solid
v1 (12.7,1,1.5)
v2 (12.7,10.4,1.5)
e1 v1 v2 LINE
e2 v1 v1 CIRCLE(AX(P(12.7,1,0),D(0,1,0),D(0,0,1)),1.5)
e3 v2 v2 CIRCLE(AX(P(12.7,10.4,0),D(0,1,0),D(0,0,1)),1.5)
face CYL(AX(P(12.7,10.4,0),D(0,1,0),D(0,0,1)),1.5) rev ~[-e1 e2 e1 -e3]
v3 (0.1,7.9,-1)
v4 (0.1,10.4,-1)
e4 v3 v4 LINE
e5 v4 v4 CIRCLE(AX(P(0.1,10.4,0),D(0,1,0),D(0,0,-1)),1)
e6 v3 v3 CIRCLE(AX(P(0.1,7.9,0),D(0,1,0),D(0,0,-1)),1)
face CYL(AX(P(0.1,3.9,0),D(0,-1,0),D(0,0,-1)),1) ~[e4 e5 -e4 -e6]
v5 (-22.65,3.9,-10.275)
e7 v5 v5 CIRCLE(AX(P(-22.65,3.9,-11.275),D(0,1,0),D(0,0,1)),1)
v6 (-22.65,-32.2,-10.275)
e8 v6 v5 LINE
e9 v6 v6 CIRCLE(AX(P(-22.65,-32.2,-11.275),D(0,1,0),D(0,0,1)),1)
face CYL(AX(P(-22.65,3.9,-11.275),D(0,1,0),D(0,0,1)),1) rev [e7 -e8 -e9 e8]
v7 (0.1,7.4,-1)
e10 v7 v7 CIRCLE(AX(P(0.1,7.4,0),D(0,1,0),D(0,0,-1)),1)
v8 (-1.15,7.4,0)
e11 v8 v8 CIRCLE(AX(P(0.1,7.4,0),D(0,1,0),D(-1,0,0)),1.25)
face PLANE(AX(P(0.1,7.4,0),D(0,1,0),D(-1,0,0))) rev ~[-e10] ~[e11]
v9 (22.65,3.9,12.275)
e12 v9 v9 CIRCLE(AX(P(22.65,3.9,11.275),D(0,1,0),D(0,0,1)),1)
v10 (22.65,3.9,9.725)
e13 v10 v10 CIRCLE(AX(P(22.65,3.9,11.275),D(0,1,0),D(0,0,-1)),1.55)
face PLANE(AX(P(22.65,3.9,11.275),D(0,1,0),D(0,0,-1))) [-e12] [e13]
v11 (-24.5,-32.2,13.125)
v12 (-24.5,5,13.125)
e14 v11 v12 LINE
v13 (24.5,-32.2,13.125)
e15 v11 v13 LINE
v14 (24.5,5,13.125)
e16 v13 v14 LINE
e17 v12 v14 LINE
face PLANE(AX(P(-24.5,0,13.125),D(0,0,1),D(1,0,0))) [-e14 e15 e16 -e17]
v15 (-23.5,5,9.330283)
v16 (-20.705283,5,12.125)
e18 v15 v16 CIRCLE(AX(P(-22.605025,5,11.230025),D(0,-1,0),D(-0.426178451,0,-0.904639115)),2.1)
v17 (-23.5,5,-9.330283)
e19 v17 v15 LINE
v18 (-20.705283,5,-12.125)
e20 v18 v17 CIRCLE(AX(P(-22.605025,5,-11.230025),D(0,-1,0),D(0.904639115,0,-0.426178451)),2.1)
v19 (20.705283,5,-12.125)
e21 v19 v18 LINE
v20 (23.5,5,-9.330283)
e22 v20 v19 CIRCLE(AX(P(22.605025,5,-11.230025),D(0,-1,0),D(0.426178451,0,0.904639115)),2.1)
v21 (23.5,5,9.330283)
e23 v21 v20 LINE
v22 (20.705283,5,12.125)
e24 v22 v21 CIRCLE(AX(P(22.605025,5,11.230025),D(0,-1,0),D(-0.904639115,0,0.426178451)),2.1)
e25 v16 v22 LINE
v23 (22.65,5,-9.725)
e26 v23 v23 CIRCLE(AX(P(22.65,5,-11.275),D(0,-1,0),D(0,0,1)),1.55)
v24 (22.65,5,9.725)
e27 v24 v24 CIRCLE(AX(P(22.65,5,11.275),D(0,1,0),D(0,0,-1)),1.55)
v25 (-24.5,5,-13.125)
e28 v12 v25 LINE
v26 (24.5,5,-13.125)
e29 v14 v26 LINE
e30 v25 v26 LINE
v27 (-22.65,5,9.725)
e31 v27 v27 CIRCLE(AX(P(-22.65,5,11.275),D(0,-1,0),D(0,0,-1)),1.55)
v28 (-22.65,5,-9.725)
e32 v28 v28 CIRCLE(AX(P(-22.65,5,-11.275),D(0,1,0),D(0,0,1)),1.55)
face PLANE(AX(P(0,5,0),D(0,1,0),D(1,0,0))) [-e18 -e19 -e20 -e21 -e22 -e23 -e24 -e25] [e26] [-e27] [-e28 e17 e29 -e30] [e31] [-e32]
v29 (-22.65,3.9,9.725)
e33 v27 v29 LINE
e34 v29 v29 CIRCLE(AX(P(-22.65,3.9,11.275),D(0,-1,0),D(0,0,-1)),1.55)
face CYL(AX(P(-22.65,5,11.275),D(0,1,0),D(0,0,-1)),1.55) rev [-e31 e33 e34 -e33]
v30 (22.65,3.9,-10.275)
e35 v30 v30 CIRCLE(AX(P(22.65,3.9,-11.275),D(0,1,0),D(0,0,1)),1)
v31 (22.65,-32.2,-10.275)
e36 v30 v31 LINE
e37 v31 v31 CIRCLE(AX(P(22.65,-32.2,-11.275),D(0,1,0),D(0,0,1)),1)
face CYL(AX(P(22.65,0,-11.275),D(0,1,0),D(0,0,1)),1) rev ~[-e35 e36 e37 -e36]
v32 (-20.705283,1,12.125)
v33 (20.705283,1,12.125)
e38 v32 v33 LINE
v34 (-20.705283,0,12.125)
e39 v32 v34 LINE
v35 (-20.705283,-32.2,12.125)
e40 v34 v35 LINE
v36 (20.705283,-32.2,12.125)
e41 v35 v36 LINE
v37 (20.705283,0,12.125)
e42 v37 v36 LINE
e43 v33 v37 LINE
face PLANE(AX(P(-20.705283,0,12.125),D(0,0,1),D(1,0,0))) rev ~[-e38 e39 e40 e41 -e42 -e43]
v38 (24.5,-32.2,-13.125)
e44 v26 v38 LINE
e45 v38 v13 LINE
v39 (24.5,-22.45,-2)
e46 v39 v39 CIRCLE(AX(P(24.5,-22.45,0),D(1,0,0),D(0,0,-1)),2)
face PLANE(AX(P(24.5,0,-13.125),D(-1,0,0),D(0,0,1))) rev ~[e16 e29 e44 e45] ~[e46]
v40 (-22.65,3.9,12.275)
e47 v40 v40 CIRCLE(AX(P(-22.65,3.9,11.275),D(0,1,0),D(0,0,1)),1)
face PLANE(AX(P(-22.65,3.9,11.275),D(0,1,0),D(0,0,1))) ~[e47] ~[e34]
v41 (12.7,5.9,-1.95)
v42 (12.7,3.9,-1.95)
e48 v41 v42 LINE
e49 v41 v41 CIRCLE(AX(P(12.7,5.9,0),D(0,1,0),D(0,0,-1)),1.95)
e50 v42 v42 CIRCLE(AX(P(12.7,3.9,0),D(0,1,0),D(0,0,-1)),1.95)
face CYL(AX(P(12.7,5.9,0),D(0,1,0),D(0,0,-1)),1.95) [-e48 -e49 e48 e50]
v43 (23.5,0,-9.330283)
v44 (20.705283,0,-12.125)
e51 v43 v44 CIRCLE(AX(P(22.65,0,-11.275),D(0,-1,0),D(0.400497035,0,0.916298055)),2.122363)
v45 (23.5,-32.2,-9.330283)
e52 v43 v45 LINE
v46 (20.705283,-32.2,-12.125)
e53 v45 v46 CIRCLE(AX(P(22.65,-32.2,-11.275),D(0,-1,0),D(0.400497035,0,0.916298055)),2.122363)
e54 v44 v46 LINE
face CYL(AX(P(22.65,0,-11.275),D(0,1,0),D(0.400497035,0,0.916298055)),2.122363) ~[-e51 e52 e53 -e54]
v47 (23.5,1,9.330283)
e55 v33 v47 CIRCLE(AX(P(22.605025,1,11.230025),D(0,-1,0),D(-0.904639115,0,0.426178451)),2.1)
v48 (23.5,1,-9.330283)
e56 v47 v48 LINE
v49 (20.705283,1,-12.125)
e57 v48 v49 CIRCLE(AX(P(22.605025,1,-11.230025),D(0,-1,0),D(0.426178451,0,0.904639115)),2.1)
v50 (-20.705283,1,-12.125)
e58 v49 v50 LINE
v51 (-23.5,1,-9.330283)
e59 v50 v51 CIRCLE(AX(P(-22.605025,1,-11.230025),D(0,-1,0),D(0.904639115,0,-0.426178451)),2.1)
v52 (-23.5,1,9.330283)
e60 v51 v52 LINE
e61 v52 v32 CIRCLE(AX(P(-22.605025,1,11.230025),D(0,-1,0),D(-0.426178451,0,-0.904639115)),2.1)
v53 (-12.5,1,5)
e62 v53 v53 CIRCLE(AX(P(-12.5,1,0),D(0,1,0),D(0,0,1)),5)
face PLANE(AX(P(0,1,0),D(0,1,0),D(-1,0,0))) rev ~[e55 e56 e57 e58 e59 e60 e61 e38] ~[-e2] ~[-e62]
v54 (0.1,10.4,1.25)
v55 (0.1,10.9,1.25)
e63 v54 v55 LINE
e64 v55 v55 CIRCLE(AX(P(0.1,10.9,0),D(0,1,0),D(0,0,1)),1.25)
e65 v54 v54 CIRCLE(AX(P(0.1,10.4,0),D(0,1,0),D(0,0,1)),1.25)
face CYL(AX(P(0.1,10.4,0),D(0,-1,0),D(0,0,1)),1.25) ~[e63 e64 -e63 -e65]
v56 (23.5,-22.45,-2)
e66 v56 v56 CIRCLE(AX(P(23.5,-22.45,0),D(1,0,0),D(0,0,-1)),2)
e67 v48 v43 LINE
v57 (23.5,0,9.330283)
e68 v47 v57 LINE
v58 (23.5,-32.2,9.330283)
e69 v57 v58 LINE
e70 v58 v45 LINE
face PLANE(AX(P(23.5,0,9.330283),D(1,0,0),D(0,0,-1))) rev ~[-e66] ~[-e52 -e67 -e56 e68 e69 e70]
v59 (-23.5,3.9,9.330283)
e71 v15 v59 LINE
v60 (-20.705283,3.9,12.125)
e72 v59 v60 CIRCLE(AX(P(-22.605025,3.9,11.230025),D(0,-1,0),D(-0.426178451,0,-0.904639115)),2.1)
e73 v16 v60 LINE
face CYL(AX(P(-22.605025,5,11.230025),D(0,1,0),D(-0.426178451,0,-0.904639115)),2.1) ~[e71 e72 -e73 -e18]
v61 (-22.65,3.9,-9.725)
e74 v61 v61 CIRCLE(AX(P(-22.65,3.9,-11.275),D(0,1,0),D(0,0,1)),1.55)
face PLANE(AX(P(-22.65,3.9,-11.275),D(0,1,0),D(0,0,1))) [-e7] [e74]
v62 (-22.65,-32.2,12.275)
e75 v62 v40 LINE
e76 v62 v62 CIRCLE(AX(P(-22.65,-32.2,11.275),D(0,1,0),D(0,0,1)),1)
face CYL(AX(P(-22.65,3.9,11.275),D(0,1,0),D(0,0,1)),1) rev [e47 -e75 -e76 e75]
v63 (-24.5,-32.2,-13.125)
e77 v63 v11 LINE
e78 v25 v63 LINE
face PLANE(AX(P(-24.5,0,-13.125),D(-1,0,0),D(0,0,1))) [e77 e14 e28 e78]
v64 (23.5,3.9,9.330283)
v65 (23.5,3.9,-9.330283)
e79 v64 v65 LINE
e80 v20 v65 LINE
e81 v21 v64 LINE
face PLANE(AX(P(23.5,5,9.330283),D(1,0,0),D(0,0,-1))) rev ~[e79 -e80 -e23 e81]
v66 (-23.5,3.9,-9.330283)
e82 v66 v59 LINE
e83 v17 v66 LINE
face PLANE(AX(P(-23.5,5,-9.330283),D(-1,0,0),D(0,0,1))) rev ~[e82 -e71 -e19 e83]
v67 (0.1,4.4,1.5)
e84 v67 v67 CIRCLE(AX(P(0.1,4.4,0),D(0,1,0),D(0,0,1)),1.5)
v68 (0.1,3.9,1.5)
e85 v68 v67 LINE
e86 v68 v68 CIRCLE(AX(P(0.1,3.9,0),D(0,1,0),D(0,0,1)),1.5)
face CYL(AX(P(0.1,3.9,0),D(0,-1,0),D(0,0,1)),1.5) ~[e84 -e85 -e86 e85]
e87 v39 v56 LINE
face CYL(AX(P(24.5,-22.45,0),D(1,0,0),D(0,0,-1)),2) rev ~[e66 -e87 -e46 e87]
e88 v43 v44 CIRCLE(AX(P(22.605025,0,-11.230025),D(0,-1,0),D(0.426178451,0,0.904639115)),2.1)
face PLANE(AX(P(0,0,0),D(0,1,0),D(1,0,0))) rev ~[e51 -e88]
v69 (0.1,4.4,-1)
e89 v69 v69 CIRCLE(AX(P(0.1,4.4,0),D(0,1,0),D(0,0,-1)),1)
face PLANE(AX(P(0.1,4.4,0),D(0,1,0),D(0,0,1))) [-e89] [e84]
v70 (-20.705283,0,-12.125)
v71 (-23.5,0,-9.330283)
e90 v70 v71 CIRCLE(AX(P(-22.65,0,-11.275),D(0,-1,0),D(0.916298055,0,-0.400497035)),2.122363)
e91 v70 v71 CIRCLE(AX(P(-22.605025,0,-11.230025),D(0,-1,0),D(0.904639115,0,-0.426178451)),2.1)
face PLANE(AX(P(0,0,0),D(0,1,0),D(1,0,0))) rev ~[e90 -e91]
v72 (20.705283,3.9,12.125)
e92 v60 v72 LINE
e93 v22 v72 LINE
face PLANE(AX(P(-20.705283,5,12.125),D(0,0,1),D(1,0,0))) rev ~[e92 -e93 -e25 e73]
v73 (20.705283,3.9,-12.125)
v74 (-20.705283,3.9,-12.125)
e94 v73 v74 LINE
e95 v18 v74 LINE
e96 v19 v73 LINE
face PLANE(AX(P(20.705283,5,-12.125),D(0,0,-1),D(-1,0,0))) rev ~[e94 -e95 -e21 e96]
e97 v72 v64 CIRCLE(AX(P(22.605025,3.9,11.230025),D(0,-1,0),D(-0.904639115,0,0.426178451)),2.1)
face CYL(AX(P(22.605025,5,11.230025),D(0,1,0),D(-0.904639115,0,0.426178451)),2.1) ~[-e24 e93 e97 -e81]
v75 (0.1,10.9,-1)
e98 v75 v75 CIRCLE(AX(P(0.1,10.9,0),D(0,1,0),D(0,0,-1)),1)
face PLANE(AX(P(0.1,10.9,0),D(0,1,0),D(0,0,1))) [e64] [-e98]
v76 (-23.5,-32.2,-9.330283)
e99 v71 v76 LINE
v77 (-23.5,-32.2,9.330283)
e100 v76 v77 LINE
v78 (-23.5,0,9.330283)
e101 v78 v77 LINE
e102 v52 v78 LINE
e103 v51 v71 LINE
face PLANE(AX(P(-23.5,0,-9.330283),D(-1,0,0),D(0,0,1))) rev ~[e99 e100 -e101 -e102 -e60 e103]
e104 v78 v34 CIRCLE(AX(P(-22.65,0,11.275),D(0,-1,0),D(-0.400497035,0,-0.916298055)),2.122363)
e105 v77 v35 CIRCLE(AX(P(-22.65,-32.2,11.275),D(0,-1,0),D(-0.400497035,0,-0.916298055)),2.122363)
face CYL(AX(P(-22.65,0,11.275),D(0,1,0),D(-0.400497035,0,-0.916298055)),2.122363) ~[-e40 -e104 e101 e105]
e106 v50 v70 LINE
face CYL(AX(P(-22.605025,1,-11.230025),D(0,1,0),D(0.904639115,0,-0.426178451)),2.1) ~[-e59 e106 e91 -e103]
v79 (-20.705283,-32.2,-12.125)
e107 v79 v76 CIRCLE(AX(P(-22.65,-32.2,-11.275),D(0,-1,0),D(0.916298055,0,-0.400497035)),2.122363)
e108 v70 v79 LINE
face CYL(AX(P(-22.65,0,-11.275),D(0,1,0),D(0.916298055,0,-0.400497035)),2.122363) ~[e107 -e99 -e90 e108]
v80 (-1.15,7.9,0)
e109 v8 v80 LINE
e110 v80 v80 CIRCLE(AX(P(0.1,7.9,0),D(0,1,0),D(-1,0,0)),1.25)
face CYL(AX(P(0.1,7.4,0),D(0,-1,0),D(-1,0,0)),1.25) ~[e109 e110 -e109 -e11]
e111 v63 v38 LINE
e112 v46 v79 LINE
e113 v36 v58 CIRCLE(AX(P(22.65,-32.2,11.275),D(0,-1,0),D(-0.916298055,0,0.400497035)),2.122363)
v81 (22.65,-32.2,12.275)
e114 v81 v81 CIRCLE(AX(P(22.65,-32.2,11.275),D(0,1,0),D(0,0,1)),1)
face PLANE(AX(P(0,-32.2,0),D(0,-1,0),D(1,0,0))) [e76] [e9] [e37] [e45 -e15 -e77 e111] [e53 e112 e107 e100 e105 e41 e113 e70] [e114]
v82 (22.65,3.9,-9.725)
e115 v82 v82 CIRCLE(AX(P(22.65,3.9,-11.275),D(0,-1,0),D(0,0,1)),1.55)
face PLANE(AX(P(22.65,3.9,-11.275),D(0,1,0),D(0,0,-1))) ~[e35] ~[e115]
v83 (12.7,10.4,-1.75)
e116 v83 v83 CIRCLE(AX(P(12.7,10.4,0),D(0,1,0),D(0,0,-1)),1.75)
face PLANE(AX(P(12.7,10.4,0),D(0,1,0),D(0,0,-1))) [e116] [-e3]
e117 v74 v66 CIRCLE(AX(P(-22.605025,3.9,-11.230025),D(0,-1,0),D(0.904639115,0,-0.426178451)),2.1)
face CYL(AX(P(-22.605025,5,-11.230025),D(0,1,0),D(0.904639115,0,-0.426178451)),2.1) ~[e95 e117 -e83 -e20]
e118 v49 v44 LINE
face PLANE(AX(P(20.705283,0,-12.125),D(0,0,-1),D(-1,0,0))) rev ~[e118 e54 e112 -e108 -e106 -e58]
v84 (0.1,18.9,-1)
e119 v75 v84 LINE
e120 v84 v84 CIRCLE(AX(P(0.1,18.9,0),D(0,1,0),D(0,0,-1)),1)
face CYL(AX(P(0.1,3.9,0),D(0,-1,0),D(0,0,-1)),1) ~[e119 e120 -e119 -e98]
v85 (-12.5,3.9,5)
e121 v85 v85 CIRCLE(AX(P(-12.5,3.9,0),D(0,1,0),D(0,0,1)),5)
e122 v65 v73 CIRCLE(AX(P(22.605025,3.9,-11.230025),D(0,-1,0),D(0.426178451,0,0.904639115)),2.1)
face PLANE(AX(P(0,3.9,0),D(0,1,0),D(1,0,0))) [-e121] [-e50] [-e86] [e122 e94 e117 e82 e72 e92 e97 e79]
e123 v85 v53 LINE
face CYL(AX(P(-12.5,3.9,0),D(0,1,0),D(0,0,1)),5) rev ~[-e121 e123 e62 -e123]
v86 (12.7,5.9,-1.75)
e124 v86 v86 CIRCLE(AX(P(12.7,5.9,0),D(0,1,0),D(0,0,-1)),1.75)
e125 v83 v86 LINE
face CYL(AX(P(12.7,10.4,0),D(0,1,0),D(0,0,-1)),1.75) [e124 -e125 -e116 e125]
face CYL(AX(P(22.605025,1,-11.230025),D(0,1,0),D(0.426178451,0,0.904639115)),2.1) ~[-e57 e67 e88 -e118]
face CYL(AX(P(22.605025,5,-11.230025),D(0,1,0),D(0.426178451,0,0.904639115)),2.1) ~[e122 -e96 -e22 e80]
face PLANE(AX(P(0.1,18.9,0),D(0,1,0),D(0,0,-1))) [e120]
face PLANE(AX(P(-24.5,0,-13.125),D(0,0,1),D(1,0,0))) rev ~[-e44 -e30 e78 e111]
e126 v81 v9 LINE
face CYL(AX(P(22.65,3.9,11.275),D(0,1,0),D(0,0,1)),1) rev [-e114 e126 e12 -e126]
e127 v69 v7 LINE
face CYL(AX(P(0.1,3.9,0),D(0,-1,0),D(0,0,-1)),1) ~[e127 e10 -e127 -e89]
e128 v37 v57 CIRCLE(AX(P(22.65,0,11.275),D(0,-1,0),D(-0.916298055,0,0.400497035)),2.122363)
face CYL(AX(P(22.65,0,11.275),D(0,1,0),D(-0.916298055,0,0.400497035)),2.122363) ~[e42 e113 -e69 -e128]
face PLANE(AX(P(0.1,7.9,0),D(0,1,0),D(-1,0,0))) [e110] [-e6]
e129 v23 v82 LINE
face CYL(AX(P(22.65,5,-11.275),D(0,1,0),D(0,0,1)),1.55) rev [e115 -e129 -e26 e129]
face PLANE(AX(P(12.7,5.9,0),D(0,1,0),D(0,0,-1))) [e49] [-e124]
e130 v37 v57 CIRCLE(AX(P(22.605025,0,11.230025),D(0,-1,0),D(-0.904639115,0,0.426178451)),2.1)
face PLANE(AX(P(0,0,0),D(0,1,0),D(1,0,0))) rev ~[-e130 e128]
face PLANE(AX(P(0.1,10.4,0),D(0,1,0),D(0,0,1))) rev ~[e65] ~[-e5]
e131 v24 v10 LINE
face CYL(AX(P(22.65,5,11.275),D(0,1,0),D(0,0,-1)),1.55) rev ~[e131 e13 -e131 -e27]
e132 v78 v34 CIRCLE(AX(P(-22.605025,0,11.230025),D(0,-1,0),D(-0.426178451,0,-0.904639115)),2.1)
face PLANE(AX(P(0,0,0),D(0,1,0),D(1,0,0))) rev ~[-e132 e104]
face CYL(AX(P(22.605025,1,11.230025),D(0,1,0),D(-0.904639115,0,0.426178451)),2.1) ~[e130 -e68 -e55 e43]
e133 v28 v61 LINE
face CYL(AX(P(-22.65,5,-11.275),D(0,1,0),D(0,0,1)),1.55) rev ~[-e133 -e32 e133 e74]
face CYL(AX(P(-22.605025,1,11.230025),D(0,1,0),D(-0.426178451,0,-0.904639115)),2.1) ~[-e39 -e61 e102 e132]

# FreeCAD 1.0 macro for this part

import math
import FreeCAD as App
import Part
import Sketcher

V = App.Vector
Q = App.Units.Quantity


def add_polygon(sketch, points):
    """Adds a closed chain of lines whose ends are joined by coincident constraints."""
    first, n = sketch.GeometryCount, len(points)
    for a, b in zip(points, points[1:] + points[:1]):
        sketch.addGeometry(Part.LineSegment(App.Vector(*a, 0), App.Vector(*b, 0)), False)
    for i in range(n):
        sketch.addConstraint(Sketcher.Constraint("Coincident", first + i, 2, first + (i + 1) % n, 1))

doc = App.newDocument("Part")
body = doc.addObject("PartDesign::Body", "Body")

# Sketch on XZ plane
sketch1 = body.newObject("Sketcher::SketchObject", "Sketch")
sketch1.AttachmentSupport = (doc.getObject("XZ_Plane"), [""])
sketch1.MapMode = "FlatFace"
add_polygon(sketch1, [(-24, -13), (-24, 13), (24, 13), (24, -13)])  # lines 0-3
sketch1.addConstraint([
    Sketcher.Constraint("Vertical", 0),
    Sketcher.Constraint("Horizontal", 1),
    Sketcher.Constraint("Vertical", 2),
    Sketcher.Constraint("Horizontal", 3),
    Sketcher.Constraint("Symmetric", 0, 2, 2, 2, -1, 1),
    Sketcher.Constraint("DistanceX", 1, 1, 1, 2, Q("49 mm")),
    Sketcher.Constraint("DistanceY", 0, 1, 0, 2, Q("26.25 mm")),
])
pad1 = body.newObject("PartDesign::Pad", "Pad")
pad1.Profile = sketch1
pad1.Length = 5
pad1.Reversed = True

# Sketch on XZ plane
sketch2 = body.newObject("Sketcher::SketchObject", "Sketch001")
sketch2.AttachmentSupport = (doc.getObject("XZ_Plane"), [""])
sketch2.MapMode = "FlatFace"
sketch2.AttachmentOffset = App.Placement(V(0, 0, -5), App.Rotation())
sketch2.addGeometry(Part.Circle(V(-22.6, -11.3, 0), V(0, 0, 1), 1.6), False)
sketch2.addConstraint([
    Sketcher.Constraint("Diameter", 0, Q("3.1 mm")),
    Sketcher.Constraint("DistanceX", 0, 3, -1, 1, Q("22.65 mm")),
    Sketcher.Constraint("DistanceY", 0, 3, -1, 1, Q("11.275 mm")),
])
pocket1 = body.newObject("PartDesign::Pocket", "Pocket")
pocket1.Profile = sketch2
pocket1.Length = 1.1
pocket1.Reversed = True
doc.recompute()

mirrored = body.newObject("PartDesign::Mirrored", "Mirrored")
mirrored.Originals = [pocket1]
mirrored.MirrorPlane = (doc.getObject("YZ_Plane"), [""])
body.Tip = mirrored
doc.recompute()

mirrored2 = body.newObject("PartDesign::Mirrored", "Mirrored001")
mirrored2.Originals = [pocket1]
mirrored2.MirrorPlane = (doc.getObject("XY_Plane"), [""])
body.Tip = mirrored2

# Sketch on XZ plane
sketch3 = body.newObject("Sketcher::SketchObject", "Sketch002")
sketch3.AttachmentSupport = (doc.getObject("XZ_Plane"), [""])
sketch3.MapMode = "FlatFace"
sketch3.AttachmentOffset = App.Placement(V(0, 0, -5), App.Rotation())
sketch3.addGeometry(Part.Circle(V(22.6, 11.3, 0), V(0, 0, 1), 1.6), False)
sketch3.addConstraint([
    Sketcher.Constraint("Diameter", 0, Q("3.1 mm")),
    Sketcher.Constraint("DistanceX", -1, 1, 0, 3, Q("22.65 mm")),
    Sketcher.Constraint("DistanceY", -1, 1, 0, 3, Q("11.275 mm")),
])
pocket2 = body.newObject("PartDesign::Pocket", "Pocket001")
pocket2.Profile = sketch3
pocket2.Length = 1.1
pocket2.Reversed = True

# Sketch on XZ plane
sketch4 = body.newObject("Sketcher::SketchObject", "Sketch003")
sketch4.AttachmentSupport = (doc.getObject("XZ_Plane"), [""])
sketch4.MapMode = "FlatFace"
sketch4.AttachmentOffset = App.Placement(V(0, 0, -5), App.Rotation())
sketch4.addGeometry([
    Part.LineSegment(V(-20.7, 12.1, 0), V(20.7, 12.1, 0)),  # 0
    Part.ArcOfCircle(Part.Circle(V(22.6, 11.2, 0), V(0, 0, 1), 2.1), math.radians(155), math.radians(295)),  # 1
    Part.LineSegment(V(23.5, 9.3, 0), V(23.5, -9.3, 0)),  # 2
    Part.ArcOfCircle(Part.Circle(V(22.6, -11.2, 0), V(0, 0, 1), 2.1), math.radians(65), math.radians(205)),  # 3
    Part.LineSegment(V(20.7, -12.1, 0), V(-20.7, -12.1, 0)),  # 4
    Part.ArcOfCircle(Part.Circle(V(-22.6, -11.2, 0), V(0, 0, 1), 2.1), math.radians(-25), math.radians(115)),  # 5
    Part.LineSegment(V(-23.5, -9.3, 0), V(-23.5, 9.3, 0)),  # 6
    Part.ArcOfCircle(Part.Circle(V(-22.6, 11.2, 0), V(0, 0, 1), 2.1), math.radians(-115), math.radians(25)),  # 7
], False)
sketch4.addConstraint([
    Sketcher.Constraint("Coincident", 0, 2, 1, 1),
    Sketcher.Constraint("Coincident", 1, 2, 2, 1),
    Sketcher.Constraint("Coincident", 2, 2, 3, 1),
    Sketcher.Constraint("Coincident", 3, 2, 4, 1),
    Sketcher.Constraint("Coincident", 4, 2, 5, 1),
    Sketcher.Constraint("Coincident", 5, 2, 6, 1),
    Sketcher.Constraint("Coincident", 6, 2, 7, 1),
    Sketcher.Constraint("Coincident", 7, 2, 0, 1),
    Sketcher.Constraint("Horizontal", 0),
    Sketcher.Constraint("Vertical", 2),
    Sketcher.Constraint("Horizontal", 4),
    Sketcher.Constraint("Vertical", 6),
    Sketcher.Constraint("Equal", 1, 3),
    Sketcher.Constraint("Equal", 3, 5),
    Sketcher.Constraint("Equal", 5, 7),
    Sketcher.Constraint("Symmetric", 1, 3, 5, 3, -1, 1),
    Sketcher.Constraint("Symmetric", 3, 3, 7, 3, -1, 1),
    Sketcher.Constraint("Symmetric", 3, 3, 5, 3, -2),
    Sketcher.Constraint("Horizontal", 2, 2, 5, 2),
    Sketcher.Constraint("Vertical", 0, 2, 3, 2),
    Sketcher.Constraint("Radius", 1, Q("2.1 mm")),
    Sketcher.Constraint("DistanceX", -1, 1, 1, 2, Q("23.5 mm")),
    Sketcher.Constraint("DistanceY", 3, 2, 0, 2, Q("24.25 mm")),
    Sketcher.Constraint("DistanceX", 0, 1, 0, 2, Q("41.410566 mm")),
    Sketcher.Constraint("DistanceY", 2, 2, 2, 1, Q("18.660566 mm")),
])
pocket3 = body.newObject("PartDesign::Pocket", "Pocket002")
pocket3.Profile = sketch4
pocket3.Length = 1.1
pocket3.Reversed = True

# Sketch on XZ plane
sketch5 = body.newObject("Sketcher::SketchObject", "Sketch004")
sketch5.AttachmentSupport = (doc.getObject("XZ_Plane"), [""])
sketch5.MapMode = "FlatFace"
sketch5.AttachmentOffset = App.Placement(V(0, 0, -3.9), App.Rotation())
sketch5.addGeometry([
    Part.Circle(V(-22.6, -11.3, 0), V(0, 0, 1), 1),
    Part.Circle(V(22.6, -11.3, 0), V(0, 0, 1), 1),
    Part.Circle(V(22.6, 11.3, 0), V(0, 0, 1), 1),
    Part.Circle(V(-22.6, 11.3, 0), V(0, 0, 1), 1),
], False)
sketch5.addConstraint([
    Sketcher.Constraint("Equal", 0, 1),
    Sketcher.Constraint("Equal", 1, 2),
    Sketcher.Constraint("Equal", 2, 3),
    Sketcher.Constraint("Symmetric", 0, 3, 2, 3, -1, 1),
    Sketcher.Constraint("Symmetric", 1, 3, 3, 3, -1, 1),
    Sketcher.Constraint("Symmetric", 0, 3, 1, 3, -2),
    Sketcher.Constraint("Diameter", 0, Q("2 mm")),
    Sketcher.Constraint("DistanceX", 0, 3, 1, 3, Q("45.3 mm")),
    Sketcher.Constraint("DistanceY", 1, 3, 2, 3, Q("22.55 mm")),
])
pocket4 = body.newObject("PartDesign::Pocket", "Pocket003")
pocket4.Profile = sketch5
pocket4.Length = 50
pocket4.Reversed = True

# Sketch on XZ plane
sketch6 = body.newObject("Sketcher::SketchObject", "Sketch005")
sketch6.AttachmentSupport = (doc.getObject("XZ_Plane"), [""])
sketch6.MapMode = "FlatFace"
sketch6.AttachmentOffset = App.Placement(V(0, 0, -3.9), App.Rotation())
sketch6.addGeometry(Part.Circle(V(-12, 0, 0), V(0, 0, 1), 5), False)
sketch6.addConstraint([
    Sketcher.Constraint("PointOnObject", 0, 3, -1),
    Sketcher.Constraint("Diameter", 0, Q("10 mm")),
    Sketcher.Constraint("DistanceX", 0, 3, -1, 1, Q("12.5 mm")),
])
pocket5 = body.newObject("PartDesign::Pocket", "Pocket004")
pocket5.Profile = sketch6
pocket5.Type = "ThroughAll"
pocket5.Reversed = True

# Sketch on XZ plane
sketch7 = body.newObject("Sketcher::SketchObject", "Sketch006")
sketch7.AttachmentSupport = (doc.getObject("XZ_Plane"), [""])
sketch7.MapMode = "FlatFace"
sketch7.AttachmentOffset = App.Placement(V(0, 0, -3.9), App.Rotation())
sketch7.addGeometry([
    Part.Circle(V(0.1, 0, 0), V(0, 0, 1), 1.5),
    Part.Circle(V(0.1, 0, 0), V(0, 0, 1), 1),
], False)
sketch7.addConstraint([
    Sketcher.Constraint("Coincident", 1, 3, 0, 3),
    Sketcher.Constraint("PointOnObject", 0, 3, -1),
    Sketcher.Constraint("Diameter", 0, Q("3 mm")),
    Sketcher.Constraint("Diameter", 1, Q("2 mm")),
    Sketcher.Constraint("DistanceX", -1, 1, 0, 3, Q("0.1 mm")),
])
pad2 = body.newObject("PartDesign::Pad", "Pad001")
pad2.Profile = sketch7
pad2.Length = 0.5
pad2.Reversed = True

# Sketch on XZ plane
sketch8 = body.newObject("Sketcher::SketchObject", "Sketch007")
sketch8.AttachmentSupport = (doc.getObject("XZ_Plane"), [""])
sketch8.MapMode = "FlatFace"
sketch8.AttachmentOffset = App.Placement(V(0, 0, -1), App.Rotation())
sketch8.addGeometry([
    Part.LineSegment(V(23.5, -9.3, 0), V(23.5, 9.3, 0)),  # 0
    Part.ArcOfCircle(Part.Circle(V(22.6, 11.2, 0), V(0, 0, 1), 2.1), math.radians(155), math.radians(295)),  # 1
    Part.LineSegment(V(20.7, 12.1, 0), V(-20.7, 12.1, 0)),  # 2
    Part.ArcOfCircle(Part.Circle(V(-22.6, 11.2, 0), V(0, 0, 1), 2.1), math.radians(-115), math.radians(25)),  # 3
    Part.LineSegment(V(-23.5, 9.3, 0), V(-23.5, -9.3, 0)),  # 4
    Part.ArcOfCircle(Part.Circle(V(-22.6, -11.2, 0), V(0, 0, 1), 2.1), math.radians(-25), math.radians(115)),  # 5
    Part.LineSegment(V(-20.7, -12.1, 0), V(20.7, -12.1, 0)),  # 6
    Part.ArcOfCircle(Part.Circle(V(22.6, -11.2, 0), V(0, 0, 1), 2.1), math.radians(65), math.radians(205)),  # 7
], False)
sketch8.addConstraint([
    Sketcher.Constraint("Coincident", 0, 2, 1, 2),
    Sketcher.Constraint("Coincident", 1, 1, 2, 1),
    Sketcher.Constraint("Coincident", 2, 2, 3, 2),
    Sketcher.Constraint("Coincident", 3, 1, 4, 1),
    Sketcher.Constraint("Coincident", 4, 2, 5, 2),
    Sketcher.Constraint("Coincident", 5, 1, 6, 1),
    Sketcher.Constraint("Coincident", 6, 2, 7, 2),
    Sketcher.Constraint("Coincident", 7, 1, 0, 1),
    Sketcher.Constraint("Vertical", 0),
    Sketcher.Constraint("Horizontal", 2),
    Sketcher.Constraint("Vertical", 4),
    Sketcher.Constraint("Horizontal", 6),
    Sketcher.Constraint("Equal", 1, 3),
    Sketcher.Constraint("Equal", 3, 5),
    Sketcher.Constraint("Equal", 5, 7),
    Sketcher.Constraint("Symmetric", 1, 3, 5, 3, -1, 1),
    Sketcher.Constraint("Symmetric", 3, 3, 7, 3, -1, 1),
    Sketcher.Constraint("Symmetric", 1, 3, 3, 3, -2),
    Sketcher.Constraint("Horizontal", 0, 2, 3, 1),
    Sketcher.Constraint("Vertical", 2, 2, 5, 1),
    Sketcher.Constraint("Radius", 1, Q("2.1 mm")),
    Sketcher.Constraint("DistanceX", -1, 1, 0, 2, Q("23.5 mm")),
    Sketcher.Constraint("DistanceY", 5, 1, 2, 2, Q("24.25 mm")),
    Sketcher.Constraint("DistanceX", 2, 2, 2, 1, Q("41.410566 mm")),
    Sketcher.Constraint("DistanceY", 0, 1, 0, 2, Q("18.660566 mm")),
])
pocket6 = body.newObject("PartDesign::Pocket", "Pocket005")
pocket6.Profile = sketch8
pocket6.Length = 1
pocket6.Reversed = True

# Sketch on XZ plane
sketch9 = body.newObject("Sketcher::SketchObject", "Sketch008")
sketch9.AttachmentSupport = (doc.getObject("XZ_Plane"), [""])
sketch9.MapMode = "FlatFace"
sketch9.AttachmentOffset = App.Placement(V(0, 0, -3.9), App.Rotation())
sketch9.addGeometry(Part.Circle(V(12.7, 0, 0), V(0, 0, 1), 1.5), False)
sketch9.addConstraint([
    Sketcher.Constraint("PointOnObject", 0, 3, -1),
    Sketcher.Constraint("Diameter", 0, Q("3 mm")),
    Sketcher.Constraint("DistanceX", -1, 1, 0, 3, Q("12.7 mm")),
])
pocket7 = body.newObject("PartDesign::Pocket", "Pocket006")
pocket7.Profile = sketch9
pocket7.Type = "ThroughAll"
pocket7.Reversed = True

# Sketch on XZ plane
sketch10 = body.newObject("Sketcher::SketchObject", "Sketch009")
sketch10.AttachmentSupport = (doc.getObject("XZ_Plane"), [""])
sketch10.MapMode = "FlatFace"
sketch10.AttachmentOffset = App.Placement(V(0, 0, -10.4), App.Rotation())
sketch10.addGeometry([
    Part.Circle(V(12.7, 0, 0), V(0, 0, 1), 1.8),
    Part.Circle(V(12.7, 0, 0), V(0, 0, 1), 1.5),
], False)
sketch10.addConstraint([
    Sketcher.Constraint("Coincident", 1, 3, 0, 3),
    Sketcher.Constraint("PointOnObject", 0, 3, -1),
    Sketcher.Constraint("Diameter", 1, Q("3 mm")),
    Sketcher.Constraint("Diameter", 0, Q("3.5 mm")),
    Sketcher.Constraint("DistanceX", -1, 1, 0, 3, Q("12.7 mm")),
])
pad3 = body.newObject("PartDesign::Pad", "Pad002")
pad3.Profile = sketch10
pad3.Length = 6.5

# Sketch on XZ plane
sketch11 = body.newObject("Sketcher::SketchObject", "Sketch010")
sketch11.AttachmentSupport = (doc.getObject("XZ_Plane"), [""])
sketch11.MapMode = "FlatFace"
sketch11.AttachmentOffset = App.Placement(V(0, 0, -3.9), App.Rotation())
sketch11.addGeometry(Part.Circle(V(0.1, 0, 0), V(0, 0, 1), 1), False)
sketch11.addConstraint([
    Sketcher.Constraint("PointOnObject", 0, 3, -1),
    Sketcher.Constraint("Diameter", 0, Q("2 mm")),
    Sketcher.Constraint("DistanceX", -1, 1, 0, 3, Q("0.1 mm")),
])
pad4 = body.newObject("PartDesign::Pad", "Pad003")
pad4.Profile = sketch11
pad4.Length = 15
pad4.Reversed = True

# Sketch on XZ plane
sketch12 = body.newObject("Sketcher::SketchObject", "Sketch011")
sketch12.AttachmentSupport = (doc.getObject("XZ_Plane"), [""])
sketch12.MapMode = "FlatFace"
sketch12.AttachmentOffset = App.Placement(V(0, 0, -10.4), App.Rotation())
sketch12.addGeometry([
    Part.Circle(V(0.1, 0, 0), V(0, 0, 1), 1.2),
    Part.Circle(V(0.1, 0, 0), V(0, 0, 1), 1),
], False)
sketch12.addConstraint([
    Sketcher.Constraint("Coincident", 1, 3, 0, 3),
    Sketcher.Constraint("PointOnObject", 0, 3, -1),
    Sketcher.Constraint("Diameter", 1, Q("2 mm")),
    Sketcher.Constraint("Diameter", 0, Q("2.5 mm")),
    Sketcher.Constraint("DistanceX", -1, 1, 0, 3, Q("0.1 mm")),
])
pad5 = body.newObject("PartDesign::Pad", "Pad004")
pad5.Profile = sketch12
pad5.Length = 0.5
pad5.Reversed = True

# Sketch on XZ plane
sketch13 = body.newObject("Sketcher::SketchObject", "Sketch012")
sketch13.AttachmentSupport = (doc.getObject("XZ_Plane"), [""])
sketch13.MapMode = "FlatFace"
sketch13.AttachmentOffset = App.Placement(V(0, 0, -7.4), App.Rotation())
sketch13.addGeometry([
    Part.Circle(V(0.1, 0, 0), V(0, 0, 1), 1.2),
    Part.Circle(V(0.1, 0, 0), V(0, 0, 1), 1),
], False)
sketch13.addConstraint([
    Sketcher.Constraint("Coincident", 1, 3, 0, 3),
    Sketcher.Constraint("PointOnObject", 0, 3, -1),
    Sketcher.Constraint("Diameter", 1, Q("2 mm")),
    Sketcher.Constraint("Diameter", 0, Q("2.5 mm")),
    Sketcher.Constraint("DistanceX", -1, 1, 0, 3, Q("0.1 mm")),
])
pad6 = body.newObject("PartDesign::Pad", "Pad005")
pad6.Profile = sketch13
pad6.Length = 0.5
pad6.Reversed = True

# Sketch on XZ plane
sketch14 = body.newObject("Sketcher::SketchObject", "Sketch013")
sketch14.AttachmentSupport = (doc.getObject("XZ_Plane"), [""])
sketch14.MapMode = "FlatFace"
sketch14.AttachmentOffset = App.Placement(V(0, 0, -5.9), App.Rotation())
sketch14.addGeometry([
    Part.Circle(V(12.7, 0, 0), V(0, 0, 1), 1.9),
    Part.Circle(V(12.7, 0, 0), V(0, 0, 1), 1.8),
], False)
sketch14.addConstraint([
    Sketcher.Constraint("Coincident", 1, 3, 0, 3),
    Sketcher.Constraint("PointOnObject", 0, 3, -1),
    Sketcher.Constraint("Diameter", 0, Q("3.9 mm")),
    Sketcher.Constraint("Diameter", 1, Q("3.5 mm")),
    Sketcher.Constraint("DistanceX", -1, 1, 0, 3, Q("12.7 mm")),
])
pad7 = body.newObject("PartDesign::Pad", "Pad006")
pad7.Profile = sketch14
pad7.Length = 2

# Sketch on XZ plane
sketch15 = body.newObject("Sketcher::SketchObject", "Sketch014")
sketch15.AttachmentSupport = (doc.getObject("XZ_Plane"), [""])
sketch15.MapMode = "FlatFace"
add_polygon(sketch15, [(-24.5, 13.1), (-24.5, -13.1), (24.5, -13.1), (24.5, 13.1)])  # lines 0-3
sketch15.addGeometry(Part.ArcOfCircle(Part.Circle(V(-22.6, 11.3, 0), V(0, 0, 1), 2.1), math.radians(-114), math.radians(24)), False)  # 4
sketch15.addGeometry(Part.LineSegment(V(-20.7, 12.1, 0), V(20.7, 12.1, 0)), False)  # 5
sketch15.addGeometry(Part.ArcOfCircle(Part.Circle(V(22.6, 11.3, 0), V(0, 0, 1), 2.1), math.radians(156), math.radians(294)), False)  # 6
sketch15.addGeometry(Part.LineSegment(V(23.5, 9.3, 0), V(23.5, -9.3, 0)), False)  # 7
sketch15.addGeometry(Part.ArcOfCircle(Part.Circle(V(22.6, -11.3, 0), V(0, 0, 1), 2.1), math.radians(66), math.radians(204)), False)  # 8
sketch15.addGeometry(Part.LineSegment(V(20.7, -12.1, 0), V(-20.7, -12.1, 0)), False)  # 9
sketch15.addGeometry(Part.ArcOfCircle(Part.Circle(V(-22.6, -11.3, 0), V(0, 0, 1), 2.1), math.radians(-24), math.radians(114)), False)  # 10
sketch15.addGeometry(Part.LineSegment(V(-23.5, -9.3, 0), V(-23.5, 9.3, 0)), False)  # 11
sketch15.addConstraint([
    Sketcher.Constraint("Coincident", 4, 2, 5, 1),
    Sketcher.Constraint("Coincident", 5, 2, 6, 1),
    Sketcher.Constraint("Coincident", 6, 2, 7, 1),
    Sketcher.Constraint("Coincident", 7, 2, 8, 1),
    Sketcher.Constraint("Coincident", 8, 2, 9, 1),
    Sketcher.Constraint("Coincident", 9, 2, 10, 1),
    Sketcher.Constraint("Coincident", 10, 2, 11, 1),
    Sketcher.Constraint("Coincident", 11, 2, 4, 1),
    Sketcher.Constraint("Vertical", 0),
    Sketcher.Constraint("Horizontal", 1),
    Sketcher.Constraint("Vertical", 2),
    Sketcher.Constraint("Horizontal", 3),
    Sketcher.Constraint("Horizontal", 5),
    Sketcher.Constraint("Vertical", 7),
    Sketcher.Constraint("Horizontal", 9),
    Sketcher.Constraint("Vertical", 11),
    Sketcher.Constraint("Equal", 4, 6),
    Sketcher.Constraint("Equal", 6, 8),
    Sketcher.Constraint("Equal", 8, 10),
    Sketcher.Constraint("Symmetric", 4, 3, 8, 3, -1, 1),
    Sketcher.Constraint("Symmetric", 6, 3, 10, 3, -1, 1),
    Sketcher.Constraint("Symmetric", 0, 2, 2, 2, -1, 1),
    Sketcher.Constraint("Symmetric", 4, 3, 6, 3, -2),
    Sketcher.Constraint("Horizontal", 7, 2, 10, 2),
    Sketcher.Constraint("Vertical", 5, 2, 8, 2),
    Sketcher.Constraint("DistanceX", 1, 1, 1, 2, Q("49 mm")),
    Sketcher.Constraint("DistanceY", 4, 2, 3, 2, Q("1 mm")),
    Sketcher.Constraint("DistanceX", 6, 2, 2, 2, Q("1 mm")),
    Sketcher.Constraint("DistanceY", 0, 2, 0, 1, Q("26.25 mm")),
    Sketcher.Constraint("DistanceX", 4, 3, 6, 3, Q("45.3 mm")),
    Sketcher.Constraint("DistanceY", 0, 2, 4, 3, Q("24.4 mm")),
    Sketcher.Constraint("Radius", 4, Q("2.122363 mm")),
])
pad8 = body.newObject("PartDesign::Pad", "Pad007")
pad8.Profile = sketch15
pad8.Length = 32.2

# Sketch on XZ plane
sketch16 = body.newObject("Sketcher::SketchObject", "Sketch015")
sketch16.AttachmentSupport = (doc.getObject("XZ_Plane"), [""])
sketch16.MapMode = "FlatFace"
sketch16.addGeometry(Part.Circle(V(22.6, -11.3, 0), V(0, 0, 1), 1), False)
sketch16.addConstraint([
    Sketcher.Constraint("Diameter", 0, Q("2 mm")),
    Sketcher.Constraint("DistanceX", -1, 1, 0, 3, Q("22.65 mm")),
    Sketcher.Constraint("DistanceY", 0, 3, -1, 1, Q("11.275 mm")),
])
pocket8 = body.newObject("PartDesign::Pocket", "Pocket007")
pocket8.Profile = sketch16
pocket8.Type = "ThroughAll"
pocket8.Reversed = True
doc.recompute()

mirrored3 = body.newObject("PartDesign::Mirrored", "Mirrored002")
mirrored3.Originals = [pocket4]
mirrored3.MirrorPlane = (doc.getObject("YZ_Plane"), [""])
body.Tip = mirrored3

# Sketch on YZ plane
sketch17 = body.newObject("Sketcher::SketchObject", "Sketch016")
sketch17.AttachmentSupport = (doc.getObject("YZ_Plane"), [""])
sketch17.MapMode = "FlatFace"
sketch17.AttachmentOffset = App.Placement(V(0, 0, 24.5), App.Rotation())
sketch17.addGeometry(Part.Circle(V(-22.4, 0, 0), V(0, 0, 1), 2), False)
sketch17.addConstraint([
    Sketcher.Constraint("PointOnObject", 0, 3, -1),
    Sketcher.Constraint("Diameter", 0, Q("4 mm")),
    Sketcher.Constraint("DistanceX", 0, 3, -1, 1, Q("22.45 mm")),
])
pocket9 = body.newObject("PartDesign::Pocket", "Pocket008")
pocket9.Profile = sketch17
pocket9.Type = "UpToFirst"

doc.recompute()
